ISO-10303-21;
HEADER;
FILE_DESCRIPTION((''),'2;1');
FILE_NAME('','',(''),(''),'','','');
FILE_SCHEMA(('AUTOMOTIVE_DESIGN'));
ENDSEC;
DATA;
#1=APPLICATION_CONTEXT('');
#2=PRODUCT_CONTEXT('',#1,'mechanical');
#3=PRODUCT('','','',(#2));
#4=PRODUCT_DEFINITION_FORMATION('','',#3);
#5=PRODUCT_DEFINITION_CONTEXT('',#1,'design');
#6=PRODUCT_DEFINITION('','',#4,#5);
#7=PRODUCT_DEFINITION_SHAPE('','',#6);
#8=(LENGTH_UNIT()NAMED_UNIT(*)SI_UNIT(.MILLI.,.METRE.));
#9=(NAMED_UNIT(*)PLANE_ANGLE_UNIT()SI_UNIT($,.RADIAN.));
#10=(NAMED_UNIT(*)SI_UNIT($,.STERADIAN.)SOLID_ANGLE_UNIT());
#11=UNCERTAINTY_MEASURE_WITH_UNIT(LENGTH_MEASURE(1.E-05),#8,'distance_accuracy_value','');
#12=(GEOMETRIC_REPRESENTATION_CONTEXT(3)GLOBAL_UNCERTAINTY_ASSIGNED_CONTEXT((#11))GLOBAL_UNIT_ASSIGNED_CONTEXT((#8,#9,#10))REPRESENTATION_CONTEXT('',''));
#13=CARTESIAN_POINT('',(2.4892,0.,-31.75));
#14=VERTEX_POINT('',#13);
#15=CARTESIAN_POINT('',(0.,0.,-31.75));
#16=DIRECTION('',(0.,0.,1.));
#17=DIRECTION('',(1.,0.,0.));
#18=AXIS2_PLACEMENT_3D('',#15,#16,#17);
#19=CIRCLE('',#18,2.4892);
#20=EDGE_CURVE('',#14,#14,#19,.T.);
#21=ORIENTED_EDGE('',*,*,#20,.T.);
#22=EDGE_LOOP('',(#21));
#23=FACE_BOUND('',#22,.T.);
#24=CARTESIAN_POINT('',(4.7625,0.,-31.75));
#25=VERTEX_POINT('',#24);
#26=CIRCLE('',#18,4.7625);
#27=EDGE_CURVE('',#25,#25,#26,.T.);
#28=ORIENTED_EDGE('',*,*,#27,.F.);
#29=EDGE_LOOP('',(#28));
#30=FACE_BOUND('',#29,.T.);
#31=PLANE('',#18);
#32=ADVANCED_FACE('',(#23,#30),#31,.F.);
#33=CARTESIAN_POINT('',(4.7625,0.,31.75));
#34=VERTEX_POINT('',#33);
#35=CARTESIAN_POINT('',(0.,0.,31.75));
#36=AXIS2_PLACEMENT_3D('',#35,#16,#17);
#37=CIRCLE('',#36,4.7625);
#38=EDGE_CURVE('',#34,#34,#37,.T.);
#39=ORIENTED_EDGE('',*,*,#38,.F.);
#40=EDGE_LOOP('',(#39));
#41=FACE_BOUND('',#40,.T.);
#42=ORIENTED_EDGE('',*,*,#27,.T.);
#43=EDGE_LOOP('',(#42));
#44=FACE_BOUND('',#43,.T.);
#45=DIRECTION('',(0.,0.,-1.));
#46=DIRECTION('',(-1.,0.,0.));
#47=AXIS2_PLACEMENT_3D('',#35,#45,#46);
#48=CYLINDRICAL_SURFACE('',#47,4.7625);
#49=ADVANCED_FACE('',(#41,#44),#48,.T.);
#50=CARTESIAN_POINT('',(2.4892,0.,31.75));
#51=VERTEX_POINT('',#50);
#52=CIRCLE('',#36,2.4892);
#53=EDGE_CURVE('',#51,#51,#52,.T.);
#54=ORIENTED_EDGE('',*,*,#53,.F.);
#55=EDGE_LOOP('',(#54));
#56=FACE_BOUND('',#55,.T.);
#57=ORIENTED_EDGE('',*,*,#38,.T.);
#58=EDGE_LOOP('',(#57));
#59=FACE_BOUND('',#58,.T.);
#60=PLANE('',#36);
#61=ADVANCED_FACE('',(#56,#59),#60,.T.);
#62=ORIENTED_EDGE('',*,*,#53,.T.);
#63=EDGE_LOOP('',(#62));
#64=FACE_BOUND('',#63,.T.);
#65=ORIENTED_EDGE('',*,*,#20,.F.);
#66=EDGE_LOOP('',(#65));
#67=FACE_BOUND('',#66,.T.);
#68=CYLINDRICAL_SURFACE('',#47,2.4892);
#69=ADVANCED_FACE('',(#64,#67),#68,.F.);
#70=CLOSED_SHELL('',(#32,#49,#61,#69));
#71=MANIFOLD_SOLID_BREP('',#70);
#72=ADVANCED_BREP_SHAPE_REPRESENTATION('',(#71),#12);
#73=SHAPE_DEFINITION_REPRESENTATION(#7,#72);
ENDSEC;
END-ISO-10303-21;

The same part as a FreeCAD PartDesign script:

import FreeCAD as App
import Part
import Sketcher
Q = App.Units.Quantity

doc = App.newDocument("Part")
body = doc.addObject("PartDesign::Body", "Body")

# Sketch on XY plane
sketch1 = body.newObject("Sketcher::SketchObject", "Sketch")
sketch1.AttachmentSupport = (doc.getObject("XY_Plane"), [""])
sketch1.MapMode = "FlatFace"
sketch1.addGeometry([
    Part.Circle(App.Vector(0, 0, 0), App.Vector(0, 0, 1), 4.8),
    Part.Circle(App.Vector(0, 0, 0), App.Vector(0, 0, 1), 2.5),
], False)
sketch1.addConstraint([
    Sketcher.Constraint("Coincident", 0, 3, -1, 1),
    Sketcher.Constraint("Coincident", 1, 3, -1, 1),
    Sketcher.Constraint("Diameter", 0, Q("0.375 in")),
    Sketcher.Constraint("Diameter", 1, Q("0.196 in")),
])
pad1 = body.newObject("PartDesign::Pad", "Pad")
pad1.Profile = sketch1
pad1.Length = Q("2.5 in")
pad1.Midplane = True

doc.recompute()
